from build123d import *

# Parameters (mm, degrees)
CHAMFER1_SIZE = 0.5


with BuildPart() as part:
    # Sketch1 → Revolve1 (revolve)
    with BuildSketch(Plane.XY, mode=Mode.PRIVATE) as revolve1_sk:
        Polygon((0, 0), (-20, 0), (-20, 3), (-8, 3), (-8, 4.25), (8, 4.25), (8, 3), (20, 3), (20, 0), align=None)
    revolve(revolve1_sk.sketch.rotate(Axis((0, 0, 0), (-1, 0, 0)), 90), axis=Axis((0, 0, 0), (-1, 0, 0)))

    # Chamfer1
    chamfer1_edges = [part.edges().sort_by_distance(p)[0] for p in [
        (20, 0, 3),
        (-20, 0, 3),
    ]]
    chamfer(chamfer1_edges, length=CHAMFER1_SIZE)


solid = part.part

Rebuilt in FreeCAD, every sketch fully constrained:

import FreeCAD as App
import Part
import Sketcher


def edges_at(feature, points):
    """Names of the edges that pass closest to the given points."""
    edges = feature.Shape.Edges
    near = lambda p: min(range(len(edges)), key=lambda i: edges[i].distToShape(Part.Vertex(*p))[0])
    return sorted({f"Edge{near(p) + 1}" for p in points})

doc = App.newDocument("Part")
params = doc.addObject("Spreadsheet::Sheet", "Params")
for row, (alias, value) in enumerate([
    ("sketch1_width", "40 mm"),
    ("sketch1_width2", "12 mm"),
    ("sketch1_height", "3 mm"),
    ("sketch1_height2", "1.25 mm"),
    ("revolution_angle", "360 deg"),
    ("chamfer_size", "0.5 mm"),
], start=1):
    params.set(f"A{row}", alias)
    params.set(f"B{row}", "=" + value)
    params.setAlias(f"B{row}", alias)

body = doc.addObject("PartDesign::Body", "Body")

sketch1 = body.newObject("Sketcher::SketchObject", "Sketch")
sketch1.AttachmentSupport = (doc.getObject("XY_Plane"), [""])
sketch1.MapMode = "FlatFace"
sketch1.addGeometry([
    Part.LineSegment(App.Vector(-20, 0, 0), App.Vector(20, 0, 0)),
    Part.LineSegment(App.Vector(20, 0, 0), App.Vector(20, 3, 0)),
    Part.LineSegment(App.Vector(20, 3, 0), App.Vector(8, 3, 0)),
    Part.LineSegment(App.Vector(8, 3, 0), App.Vector(8, 4.25, 0)),
    Part.LineSegment(App.Vector(8, 4.25, 0), App.Vector(-8, 4.25, 0)),
    Part.LineSegment(App.Vector(-8, 4.25, 0), App.Vector(-8, 3, 0)),
    Part.LineSegment(App.Vector(-8, 3, 0), App.Vector(-20, 3, 0)),
    Part.LineSegment(App.Vector(-20, 3, 0), App.Vector(-20, 0, 0)),
], False)
sketch1.addConstraint([
    Sketcher.Constraint("Coincident", 0, 2, 1, 1),
    Sketcher.Constraint("Coincident", 1, 2, 2, 1),
    Sketcher.Constraint("Coincident", 2, 2, 3, 1),
    Sketcher.Constraint("Coincident", 3, 2, 4, 1),
    Sketcher.Constraint("Coincident", 4, 2, 5, 1),
    Sketcher.Constraint("Coincident", 5, 2, 6, 1),
    Sketcher.Constraint("Coincident", 6, 2, 7, 1),
    Sketcher.Constraint("Coincident", 7, 2, 0, 1),
    Sketcher.Constraint("Horizontal", 0),
    Sketcher.Constraint("Vertical", 1),
    Sketcher.Constraint("Horizontal", 2),
    Sketcher.Constraint("Vertical", 3),
    Sketcher.Constraint("Horizontal", 4),
    Sketcher.Constraint("Vertical", 5),
    Sketcher.Constraint("Horizontal", 6),
    Sketcher.Constraint("Vertical", 7),
    Sketcher.Constraint("Symmetric", 0, 2, 7, 2, -1, 1),
    Sketcher.Constraint("Symmetric", 2, 2, 5, 2, -2),
    Sketcher.Constraint("DistanceX", 0, 1, 0, 2, 40.0),
    Sketcher.Constraint("DistanceX", 2, 2, 2, 1, 12.0),
    Sketcher.Constraint("DistanceY", 1, 1, 1, 2, 3.0),
    Sketcher.Constraint("DistanceY", 3, 1, 3, 2, 1.25),
])
sketch1.setExpression("Constraints[18]", "Params.sketch1_width")
sketch1.setExpression("Constraints[19]", "Params.sketch1_width2")
sketch1.setExpression("Constraints[20]", "Params.sketch1_height")
sketch1.setExpression("Constraints[21]", "Params.sketch1_height2")
revolution = body.newObject("PartDesign::Revolution", "Revolution")
revolution.Profile = sketch1
revolution.ReferenceAxis = (sketch1, ["H_Axis"])
revolution.setExpression("Angle", "Params.revolution_angle")
doc.recompute()

chamfer = body.newObject("PartDesign::Chamfer", "Chamfer")
chamfer.Base = (revolution, edges_at(revolution, [(20, 0, 3), (-20, 0, 3)]))
chamfer.setExpression("Size", "Params.chamfer_size")

doc.recompute()
